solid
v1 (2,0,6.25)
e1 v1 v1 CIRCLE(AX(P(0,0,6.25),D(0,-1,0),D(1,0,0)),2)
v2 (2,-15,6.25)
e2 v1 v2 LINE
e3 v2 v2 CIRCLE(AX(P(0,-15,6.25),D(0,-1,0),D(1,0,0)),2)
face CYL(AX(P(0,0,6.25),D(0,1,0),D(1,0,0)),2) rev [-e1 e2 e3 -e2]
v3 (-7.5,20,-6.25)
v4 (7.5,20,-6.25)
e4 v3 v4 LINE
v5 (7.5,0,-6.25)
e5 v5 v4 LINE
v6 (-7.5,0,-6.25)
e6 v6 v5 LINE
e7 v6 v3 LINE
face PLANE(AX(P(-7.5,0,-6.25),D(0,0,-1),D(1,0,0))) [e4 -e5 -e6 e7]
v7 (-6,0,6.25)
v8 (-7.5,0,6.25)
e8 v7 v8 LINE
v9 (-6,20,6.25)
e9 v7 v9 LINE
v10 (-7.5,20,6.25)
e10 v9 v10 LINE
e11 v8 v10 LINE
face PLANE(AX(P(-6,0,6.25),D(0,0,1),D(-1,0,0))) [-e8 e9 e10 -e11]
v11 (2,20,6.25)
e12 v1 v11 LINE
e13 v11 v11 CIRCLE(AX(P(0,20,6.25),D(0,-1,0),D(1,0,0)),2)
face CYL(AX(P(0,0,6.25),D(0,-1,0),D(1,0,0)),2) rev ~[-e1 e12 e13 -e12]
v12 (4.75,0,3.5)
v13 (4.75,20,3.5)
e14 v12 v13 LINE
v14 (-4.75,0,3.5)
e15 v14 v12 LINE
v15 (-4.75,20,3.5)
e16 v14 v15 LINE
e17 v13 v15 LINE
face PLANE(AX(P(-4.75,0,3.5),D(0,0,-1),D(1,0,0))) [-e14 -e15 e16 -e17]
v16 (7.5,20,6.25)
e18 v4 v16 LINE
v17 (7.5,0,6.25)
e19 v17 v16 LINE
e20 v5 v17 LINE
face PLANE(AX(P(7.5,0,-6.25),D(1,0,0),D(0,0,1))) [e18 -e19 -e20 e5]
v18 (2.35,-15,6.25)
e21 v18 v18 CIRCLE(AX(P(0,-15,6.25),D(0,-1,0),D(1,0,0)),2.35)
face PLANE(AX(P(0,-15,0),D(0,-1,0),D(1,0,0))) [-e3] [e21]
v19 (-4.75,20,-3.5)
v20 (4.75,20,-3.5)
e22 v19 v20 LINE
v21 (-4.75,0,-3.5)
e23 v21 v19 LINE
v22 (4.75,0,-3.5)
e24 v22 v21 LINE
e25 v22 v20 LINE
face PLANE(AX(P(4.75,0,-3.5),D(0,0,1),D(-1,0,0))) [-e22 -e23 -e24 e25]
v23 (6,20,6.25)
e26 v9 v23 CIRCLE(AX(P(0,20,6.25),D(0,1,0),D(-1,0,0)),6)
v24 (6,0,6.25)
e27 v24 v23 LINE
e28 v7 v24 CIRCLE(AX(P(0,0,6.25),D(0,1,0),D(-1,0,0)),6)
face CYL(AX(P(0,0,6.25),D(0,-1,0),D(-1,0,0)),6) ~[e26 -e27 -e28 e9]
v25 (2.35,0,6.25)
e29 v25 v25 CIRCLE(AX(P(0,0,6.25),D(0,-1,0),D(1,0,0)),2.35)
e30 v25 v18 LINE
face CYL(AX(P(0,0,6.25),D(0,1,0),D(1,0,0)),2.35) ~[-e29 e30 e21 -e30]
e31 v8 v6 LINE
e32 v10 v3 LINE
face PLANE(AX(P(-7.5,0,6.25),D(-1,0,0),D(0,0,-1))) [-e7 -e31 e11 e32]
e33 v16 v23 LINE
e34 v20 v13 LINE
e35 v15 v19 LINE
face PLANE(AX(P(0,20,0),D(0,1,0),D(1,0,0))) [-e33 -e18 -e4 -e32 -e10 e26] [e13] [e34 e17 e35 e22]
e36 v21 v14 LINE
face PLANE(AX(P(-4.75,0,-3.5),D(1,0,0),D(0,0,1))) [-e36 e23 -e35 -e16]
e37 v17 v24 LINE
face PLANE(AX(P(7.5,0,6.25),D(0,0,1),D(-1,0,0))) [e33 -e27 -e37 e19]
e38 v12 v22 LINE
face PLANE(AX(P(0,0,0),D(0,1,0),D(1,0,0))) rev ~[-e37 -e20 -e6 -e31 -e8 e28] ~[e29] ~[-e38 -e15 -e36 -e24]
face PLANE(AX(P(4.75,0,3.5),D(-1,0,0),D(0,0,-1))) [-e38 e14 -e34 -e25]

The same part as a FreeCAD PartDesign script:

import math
import FreeCAD as App
import Part
import Sketcher


def add_polygon(sketch, points):
    """Adds a closed chain of lines whose ends are joined by coincident constraints."""
    first, n = sketch.GeometryCount, len(points)
    for a, b in zip(points, points[1:] + points[:1]):
        sketch.addGeometry(Part.LineSegment(App.Vector(*a, 0), App.Vector(*b, 0)), False)
    for i in range(n):
        sketch.addConstraint(Sketcher.Constraint("Coincident", first + i, 2, first + (i + 1) % n, 1))

doc = App.newDocument("Part")
body = doc.addObject("PartDesign::Body", "Body")

# Sketch on XZ plane
sketch1 = body.newObject("Sketcher::SketchObject", "Sketch")
sketch1.AttachmentSupport = (doc.getObject("XZ_Plane"), [""])
sketch1.MapMode = "FlatFace"
sketch1.addGeometry([
    Part.LineSegment(App.Vector(7.5, -6.2, 0), App.Vector(-7.5, -6.2, 0)),  # 0
    Part.LineSegment(App.Vector(-7.5, -6.2, 0), App.Vector(-7.5, 6.2, 0)),  # 1
    Part.LineSegment(App.Vector(-7.5, 6.2, 0), App.Vector(-6, 6.2, 0)),  # 2
    Part.ArcOfCircle(Part.Circle(App.Vector(0, 6.2, 0), App.Vector(0, 0, 1), 6), math.radians(0), math.radians(180)),  # 3
    Part.LineSegment(App.Vector(6, 6.2, 0), App.Vector(7.5, 6.2, 0)),  # 4
    Part.LineSegment(App.Vector(7.5, 6.2, 0), App.Vector(7.5, -6.2, 0)),  # 5
], False)
sketch1.addConstraint([
    Sketcher.Constraint("Coincident", 0, 2, 1, 1),
    Sketcher.Constraint("Coincident", 1, 2, 2, 1),
    Sketcher.Constraint("Coincident", 2, 2, 3, 2),
    Sketcher.Constraint("Coincident", 3, 1, 4, 1),
    Sketcher.Constraint("Coincident", 4, 2, 5, 1),
    Sketcher.Constraint("Coincident", 5, 2, 0, 1),
    Sketcher.Constraint("Horizontal", 0),
    Sketcher.Constraint("Vertical", 1),
    Sketcher.Constraint("Horizontal", 2),
    Sketcher.Constraint("Horizontal", 4),
    Sketcher.Constraint("Vertical", 5),
    Sketcher.Constraint("Symmetric", 0, 2, 4, 2, -1, 1),
    Sketcher.Constraint("Symmetric", 2, 2, 3, 1, -2),
    Sketcher.Constraint("Horizontal", 3, 3, 1, 2),
    Sketcher.Constraint("Radius", 3, 6.0),
    Sketcher.Constraint("DistanceX", 0, 2, 0, 1, 15.0),
    Sketcher.Constraint("DistanceY", 1, 1, 1, 2, 12.5),
])
pad1 = body.newObject("PartDesign::Pad", "Pad")
pad1.Profile = sketch1
pad1.Length = 20
pad1.Reversed = True

# Sketch on XZ plane
sketch2 = body.newObject("Sketcher::SketchObject", "Sketch001")
sketch2.AttachmentSupport = (doc.getObject("XZ_Plane"), [""])
sketch2.MapMode = "FlatFace"
add_polygon(sketch2, [(-5, -4), (5, -4), (5, 4), (-5, 4)])  # lines 0-3
sketch2.addConstraint([
    Sketcher.Constraint("Horizontal", 0),
    Sketcher.Constraint("Vertical", 1),
    Sketcher.Constraint("Horizontal", 2),
    Sketcher.Constraint("Vertical", 3),
    Sketcher.Constraint("Symmetric", 0, 2, 2, 2, -1, 1),
    Sketcher.Constraint("DistanceY", 1, 1, 1, 2, 7.0),
    Sketcher.Constraint("DistanceX", 0, 1, 0, 2, 9.5),
])
pocket1 = body.newObject("PartDesign::Pocket", "Pocket")
pocket1.Profile = sketch2
pocket1.Length = 39

# Sketch on XZ plane
sketch3 = body.newObject("Sketcher::SketchObject", "Sketch002")
sketch3.AttachmentSupport = (doc.getObject("XZ_Plane"), [""])
sketch3.MapMode = "FlatFace"
sketch3.addGeometry(Part.Circle(App.Vector(0, 6.2, 0), App.Vector(0, 0, 1), 2), False)
sketch3.addConstraint([
    Sketcher.Constraint("PointOnObject", 0, 3, -2),
    Sketcher.Constraint("Diameter", 0, 4.0),
    Sketcher.Constraint("DistanceY", -1, 1, 0, 3, 6.25),
])
pocket2 = body.newObject("PartDesign::Pocket", "Pocket001")
pocket2.Profile = sketch3
pocket2.Length = 30

# Sketch on XZ plane
sketch4 = body.newObject("Sketcher::SketchObject", "Sketch003")
sketch4.AttachmentSupport = (doc.getObject("XZ_Plane"), [""])
sketch4.MapMode = "FlatFace"
sketch4.addGeometry([
    Part.Circle(App.Vector(0, 6.2, 0), App.Vector(0, 0, 1), 2.4),
    Part.Circle(App.Vector(0, 6.2, 0), App.Vector(0, 0, 1), 2),
], False)
sketch4.addConstraint([
    Sketcher.Constraint("Coincident", 1, 3, 0, 3),
    Sketcher.Constraint("PointOnObject", 0, 3, -2),
    Sketcher.Constraint("Diameter", 1, 4.0),
    Sketcher.Constraint("Diameter", 0, 4.7),
    Sketcher.Constraint("DistanceY", -1, 1, 0, 3, 6.25),
])
pad2 = body.newObject("PartDesign::Pad", "Pad001")
pad2.Profile = sketch4
pad2.Length = 15

doc.recompute()
